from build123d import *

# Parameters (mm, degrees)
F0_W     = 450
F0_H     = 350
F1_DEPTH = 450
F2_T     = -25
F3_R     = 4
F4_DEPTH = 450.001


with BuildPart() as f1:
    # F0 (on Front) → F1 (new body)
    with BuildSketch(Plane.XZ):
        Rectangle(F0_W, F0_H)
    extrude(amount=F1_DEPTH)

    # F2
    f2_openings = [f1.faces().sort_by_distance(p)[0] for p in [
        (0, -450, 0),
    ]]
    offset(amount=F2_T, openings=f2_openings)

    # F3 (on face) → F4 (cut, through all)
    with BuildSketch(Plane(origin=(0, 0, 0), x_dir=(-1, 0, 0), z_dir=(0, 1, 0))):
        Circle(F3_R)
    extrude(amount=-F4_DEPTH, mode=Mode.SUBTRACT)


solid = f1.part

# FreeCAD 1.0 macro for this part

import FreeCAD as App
import Part
import Sketcher
from FreeCAD import Vector
Q = App.Units.Quantity


def faces_at(feature, points):
    """Names of the faces that lie closest to the given points."""
    faces = feature.Shape.Faces
    near = lambda p: min(range(len(faces)), key=lambda i: faces[i].distToShape(Part.Vertex(*p))[0])
    return sorted({f"Face{near(p) + 1}" for p in points})


def add_polygon(sketch, points):
    """Adds a closed chain of lines whose ends are joined by coincident constraints."""
    first, n = sketch.GeometryCount, len(points)
    for a, b in zip(points, points[1:] + points[:1]):
        sketch.addGeometry(Part.LineSegment(App.Vector(*a, 0), App.Vector(*b, 0)), False)
    for i in range(n):
        sketch.addConstraint(Sketcher.Constraint("Coincident", first + i, 2, first + (i + 1) % n, 1))

doc = App.newDocument("Part")
body = doc.addObject("PartDesign::Body", "Body")

sketch1 = body.newObject("Sketcher::SketchObject", "Sketch")
sketch1.AttachmentSupport = (doc.getObject("XZ_Plane"), [""])
sketch1.MapMode = "FlatFace"
add_polygon(sketch1, [(-225, 175), (-225, -175), (225, -175), (225, 175)])
sketch1.addConstraint(Sketcher.Constraint("Vertical", 0))
sketch1.addConstraint(Sketcher.Constraint("Horizontal", 1))
sketch1.addConstraint(Sketcher.Constraint("Vertical", 2))
sketch1.addConstraint(Sketcher.Constraint("Horizontal", 3))
sketch1.addConstraint(Sketcher.Constraint("Symmetric", 0, 2, 2, 2, -1, 1))
sketch1.addConstraint(Sketcher.Constraint("DistanceX", 1, 1, 1, 2, Q("450 mm")))
sketch1.addConstraint(Sketcher.Constraint("DistanceY", 0, 2, 0, 1, Q("350 mm")))
pad1 = body.newObject("PartDesign::Pad", "Pad")
pad1.Profile = sketch1
pad1.Length = 450
doc.recompute()

thickness = body.newObject("PartDesign::Thickness", "Thickness")
thickness.Base = (pad1, faces_at(pad1, [(0, -450, 0)]))
thickness.Value = 25
thickness.Reversed = True
thickness.Join = "Arc"

sketch2 = body.newObject("Sketcher::SketchObject", "Sketch001")
sketch2.AttachmentSupport = (doc.getObject("XZ_Plane"), [""])
sketch2.MapMode = "FlatFace"
sketch2.addGeometry(Part.Circle(Vector(0, 0, 0), Vector(0, 0, 1), 4), False)
sketch2.addConstraint(Sketcher.Constraint("Coincident", 0, 3, -1, 1))
sketch2.addConstraint(Sketcher.Constraint("Diameter", 0, Q("8 mm")))
pocket1 = body.newObject("PartDesign::Pocket", "Pocket")
pocket1.Profile = sketch2
pocket1.Type = "ThroughAll"
pocket1.Reversed = True

doc.recompute()
